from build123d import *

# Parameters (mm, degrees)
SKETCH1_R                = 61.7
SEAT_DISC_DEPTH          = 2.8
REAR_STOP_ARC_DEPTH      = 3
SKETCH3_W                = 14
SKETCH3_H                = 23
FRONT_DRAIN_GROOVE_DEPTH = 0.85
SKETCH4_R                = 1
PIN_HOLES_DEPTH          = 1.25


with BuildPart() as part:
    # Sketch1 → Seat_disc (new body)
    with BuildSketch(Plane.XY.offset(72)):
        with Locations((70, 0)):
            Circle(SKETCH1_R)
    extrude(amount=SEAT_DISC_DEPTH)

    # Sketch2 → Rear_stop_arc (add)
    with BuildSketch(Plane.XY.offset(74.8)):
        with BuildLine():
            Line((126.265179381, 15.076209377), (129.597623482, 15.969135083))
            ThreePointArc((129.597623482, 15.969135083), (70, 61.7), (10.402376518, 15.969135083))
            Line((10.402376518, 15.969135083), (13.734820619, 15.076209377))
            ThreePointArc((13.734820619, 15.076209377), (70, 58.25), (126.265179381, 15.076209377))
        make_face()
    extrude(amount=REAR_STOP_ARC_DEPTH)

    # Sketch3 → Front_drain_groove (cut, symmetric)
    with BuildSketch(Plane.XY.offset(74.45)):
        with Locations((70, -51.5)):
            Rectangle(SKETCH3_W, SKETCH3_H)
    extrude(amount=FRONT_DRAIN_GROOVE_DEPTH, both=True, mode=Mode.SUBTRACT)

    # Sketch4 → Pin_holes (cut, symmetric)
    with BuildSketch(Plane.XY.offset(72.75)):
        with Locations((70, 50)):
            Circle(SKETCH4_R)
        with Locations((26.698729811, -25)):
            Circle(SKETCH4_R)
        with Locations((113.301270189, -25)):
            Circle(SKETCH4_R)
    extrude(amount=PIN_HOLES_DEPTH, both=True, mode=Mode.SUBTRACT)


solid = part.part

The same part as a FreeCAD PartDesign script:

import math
import FreeCAD as App
import Part
import Sketcher

V = App.Vector
Q = App.Units.Quantity


def add_polygon(sketch, points):
    """Adds a closed chain of lines whose ends are joined by coincident constraints."""
    first, n = sketch.GeometryCount, len(points)
    for a, b in zip(points, points[1:] + points[:1]):
        sketch.addGeometry(Part.LineSegment(App.Vector(*a, 0), App.Vector(*b, 0)), False)
    for i in range(n):
        sketch.addConstraint(Sketcher.Constraint("Coincident", first + i, 2, first + (i + 1) % n, 1))

doc = App.newDocument("Part")
params = doc.addObject("Spreadsheet::Sheet", "Params")
for row, (alias, value) in enumerate([
    ("sketch1_diameter", "123.4 mm"),
    ("pad1_length", "2.8 mm"),
    ("sketch2_radius", "61.7 mm"),
    ("sketch2_radius2", "58.25 mm"),
    ("pad2_length", "3 mm"),
    ("sketch3_width", "14 mm"),
    ("sketch3_height", "23 mm"),
    ("pocket1_length", "1.7 mm"),
    ("sketch4_diameter", "2 mm"),
    ("pocket2_length", "2.5 mm"),
], start=1):
    params.set(f"A{row}", alias)
    params.set(f"B{row}", "=" + value)
    params.setAlias(f"B{row}", alias)

body = doc.addObject("PartDesign::Body", "Body")

sketch1 = doc.addObject("Sketcher::SketchObject", "Sketch")
body.addObject(sketch1)
sketch1.AttachmentSupport = (doc.XY_Plane, [""])
sketch1.MapMode = "FlatFace"
sketch1.AttachmentOffset = App.Placement(V(0, 0, 72), App.Rotation())
sketch1.addGeometry(Part.Circle(V(70, 0, 0), V(0, 0, 1), 62), False)
sketch1.addConstraint(Sketcher.Constraint("PointOnObject", 0, 3, -1))
sketch1.addConstraint(Sketcher.Constraint("Diameter", 0, 123.4))
sketch1.addConstraint(Sketcher.Constraint("DistanceX", -1, 1, 0, 3, 70.0))
sketch1.setExpression("Constraints[1]", "Params.sketch1_diameter")
pad1 = doc.addObject("PartDesign::Pad", "Pad")
body.addObject(pad1)
pad1.Profile = sketch1
pad1.setExpression("Length", "Params.pad1_length")

sketch2 = doc.addObject("Sketcher::SketchObject", "Sketch001")
body.addObject(sketch2)
sketch2.AttachmentSupport = (doc.XY_Plane, [""])
sketch2.MapMode = "FlatFace"
sketch2.AttachmentOffset = App.Placement(V(0, 0, 74.8), App.Rotation())
sketch2.addGeometry(Part.LineSegment(V(126.3, 15.1, 0), V(129.6, 16, 0)), False)
sketch2.addGeometry(Part.ArcOfCircle(Part.Circle(V(70, 0, 0), V(0, 0, 1), 61.7), math.radians(15), math.radians(165)), False)
sketch2.addGeometry(Part.LineSegment(V(10.4, 16, 0), V(13.7, 15.1, 0)), False)
sketch2.addGeometry(Part.ArcOfCircle(Part.Circle(V(70, 0, 0), V(0, 0, 1), 58.2), math.radians(15), math.radians(165)), False)
sketch2.addConstraint(Sketcher.Constraint("Coincident", 0, 2, 1, 1))
sketch2.addConstraint(Sketcher.Constraint("Coincident", 1, 2, 2, 1))
sketch2.addConstraint(Sketcher.Constraint("Coincident", 2, 2, 3, 2))
sketch2.addConstraint(Sketcher.Constraint("Coincident", 3, 1, 0, 1))
sketch2.addConstraint(Sketcher.Constraint("Coincident", 3, 3, 1, 3))
sketch2.addConstraint(Sketcher.Constraint("PointOnObject", 1, 3, -1))
sketch2.addConstraint(Sketcher.Constraint("Horizontal", 0, 2, 1, 2))
sketch2.addConstraint(Sketcher.Constraint("Horizontal", 2, 2, 3, 1))
sketch2.addConstraint(Sketcher.Constraint("Radius", 1, 61.7))
sketch2.addConstraint(Sketcher.Constraint("Angle", 0, Q("15 deg")))
sketch2.addConstraint(Sketcher.Constraint("Radius", 3, 58.25))
sketch2.addConstraint(Sketcher.Constraint("DistanceX", -1, 1, 1, 3, 70.0))
sketch2.addConstraint(Sketcher.Constraint("DistanceX", -1, 1, 2, 2, 13.734821))
sketch2.setExpression("Constraints[8]", "Params.sketch2_radius")
sketch2.setExpression("Constraints[10]", "Params.sketch2_radius2")
pad2 = doc.addObject("PartDesign::Pad", "Pad001")
body.addObject(pad2)
pad2.Profile = sketch2
pad2.setExpression("Length", "Params.pad2_length")

sketch3 = doc.addObject("Sketcher::SketchObject", "Sketch002")
body.addObject(sketch3)
sketch3.AttachmentSupport = (doc.XY_Plane, [""])
sketch3.MapMode = "FlatFace"
sketch3.AttachmentOffset = App.Placement(V(0, 0, 74.45), App.Rotation())
add_polygon(sketch3, [(63, -40), (63, -63), (77, -63), (77, -40)])
sketch3.addConstraint(Sketcher.Constraint("Vertical", 0))
sketch3.addConstraint(Sketcher.Constraint("Horizontal", 1))
sketch3.addConstraint(Sketcher.Constraint("Vertical", 2))
sketch3.addConstraint(Sketcher.Constraint("Horizontal", 3))
sketch3.addConstraint(Sketcher.Constraint("DistanceX", 1, 1, 1, 2, 14.0))
sketch3.addConstraint(Sketcher.Constraint("DistanceY", 0, 2, 0, 1, 23.0))
sketch3.addConstraint(Sketcher.Constraint("DistanceX", -1, 1, 0, 2, 63.0))
sketch3.addConstraint(Sketcher.Constraint("DistanceY", 0, 2, -1, 1, 63.0))
sketch3.setExpression("Constraints[8]", "Params.sketch3_width")
sketch3.setExpression("Constraints[9]", "Params.sketch3_height")
pocket1 = doc.addObject("PartDesign::Pocket", "Pocket")
body.addObject(pocket1)
pocket1.Profile = sketch3
pocket1.setExpression("Length", "Params.pocket1_length")
pocket1.Midplane = True

sketch4 = doc.addObject("Sketcher::SketchObject", "Sketch003")
body.addObject(sketch4)
sketch4.AttachmentSupport = (doc.XY_Plane, [""])
sketch4.MapMode = "FlatFace"
sketch4.AttachmentOffset = App.Placement(V(0, 0, 72.75), App.Rotation())
sketch4.addGeometry(Part.Circle(V(70, 50, 0), V(0, 0, 1), 1), False)
sketch4.addGeometry(Part.Circle(V(26.7, -25, 0), V(0, 0, 1), 1), False)
sketch4.addGeometry(Part.Circle(V(113.3, -25, 0), V(0, 0, 1), 1), False)
sketch4.addConstraint(Sketcher.Constraint("Equal", 0, 1))
sketch4.addConstraint(Sketcher.Constraint("Equal", 1, 2))
sketch4.addConstraint(Sketcher.Constraint("Horizontal", 1, 3, 2, 3))
sketch4.addConstraint(Sketcher.Constraint("Diameter", 0, 2.0))
sketch4.addConstraint(Sketcher.Constraint("DistanceX", -1, 1, 0, 3, 70.0))
sketch4.addConstraint(Sketcher.Constraint("DistanceY", -1, 1, 0, 3, 50.0))
sketch4.addConstraint(Sketcher.Constraint("DistanceY", 1, 3, -1, 1, 25.0))
sketch4.addConstraint(Sketcher.Constraint("DistanceX", -1, 1, 1, 3, 26.69873))
sketch4.addConstraint(Sketcher.Constraint("DistanceX", -1, 1, 2, 3, 113.30127))
sketch4.setExpression("Constraints[3]", "Params.sketch4_diameter")
pocket2 = doc.addObject("PartDesign::Pocket", "Pocket001")
body.addObject(pocket2)
pocket2.Profile = sketch4
pocket2.setExpression("Length", "Params.pocket2_length")
pocket2.Midplane = True

doc.recompute()
